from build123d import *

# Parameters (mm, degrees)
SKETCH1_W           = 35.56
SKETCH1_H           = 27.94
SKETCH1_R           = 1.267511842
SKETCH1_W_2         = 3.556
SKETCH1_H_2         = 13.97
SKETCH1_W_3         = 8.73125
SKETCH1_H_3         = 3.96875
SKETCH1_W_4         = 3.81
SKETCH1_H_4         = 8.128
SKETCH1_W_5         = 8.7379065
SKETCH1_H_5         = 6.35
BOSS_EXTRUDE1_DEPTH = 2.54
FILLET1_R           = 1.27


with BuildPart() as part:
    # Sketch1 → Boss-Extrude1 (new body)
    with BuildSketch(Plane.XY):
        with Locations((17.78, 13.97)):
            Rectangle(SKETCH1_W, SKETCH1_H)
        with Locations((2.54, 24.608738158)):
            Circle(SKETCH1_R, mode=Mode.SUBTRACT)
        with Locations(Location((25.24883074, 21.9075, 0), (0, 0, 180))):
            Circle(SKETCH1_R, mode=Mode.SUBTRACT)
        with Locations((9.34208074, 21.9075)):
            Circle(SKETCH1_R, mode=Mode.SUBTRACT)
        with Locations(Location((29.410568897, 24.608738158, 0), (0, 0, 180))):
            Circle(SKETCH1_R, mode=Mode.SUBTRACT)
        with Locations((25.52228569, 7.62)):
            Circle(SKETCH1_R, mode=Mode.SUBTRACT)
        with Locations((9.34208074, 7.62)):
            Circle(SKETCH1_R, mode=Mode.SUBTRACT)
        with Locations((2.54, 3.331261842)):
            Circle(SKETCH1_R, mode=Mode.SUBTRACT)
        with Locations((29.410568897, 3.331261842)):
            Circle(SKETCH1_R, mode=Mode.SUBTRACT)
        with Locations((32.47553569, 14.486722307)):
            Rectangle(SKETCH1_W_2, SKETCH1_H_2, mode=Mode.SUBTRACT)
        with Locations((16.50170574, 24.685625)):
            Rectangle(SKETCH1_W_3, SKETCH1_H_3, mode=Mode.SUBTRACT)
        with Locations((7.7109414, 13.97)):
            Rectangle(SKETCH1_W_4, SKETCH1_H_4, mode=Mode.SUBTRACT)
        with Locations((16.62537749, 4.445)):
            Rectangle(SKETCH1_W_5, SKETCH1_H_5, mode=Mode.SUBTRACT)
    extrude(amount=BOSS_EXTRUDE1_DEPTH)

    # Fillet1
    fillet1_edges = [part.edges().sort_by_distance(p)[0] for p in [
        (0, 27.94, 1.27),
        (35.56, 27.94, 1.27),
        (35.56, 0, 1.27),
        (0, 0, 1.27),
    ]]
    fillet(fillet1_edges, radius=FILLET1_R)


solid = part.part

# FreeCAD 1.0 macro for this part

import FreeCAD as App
import Part
import Sketcher
from FreeCAD import Vector
Q = App.Units.Quantity


def edges_at(feature, points):
    """Names of the edges that pass closest to the given points."""
    edges = feature.Shape.Edges
    near = lambda p: min(range(len(edges)), key=lambda i: edges[i].distToShape(Part.Vertex(*p))[0])
    return sorted({f"Edge{near(p) + 1}" for p in points})


def add_polygon(sketch, points):
    """Adds a closed chain of lines whose ends are joined by coincident constraints."""
    first, n = sketch.GeometryCount, len(points)
    for a, b in zip(points, points[1:] + points[:1]):
        sketch.addGeometry(Part.LineSegment(App.Vector(*a, 0), App.Vector(*b, 0)), False)
    for i in range(n):
        sketch.addConstraint(Sketcher.Constraint("Coincident", first + i, 2, first + (i + 1) % n, 1))

doc = App.newDocument("Part")
body = doc.addObject("PartDesign::Body", "Body")

# Sketch on XY plane
sketch1 = body.newObject("Sketcher::SketchObject", "Sketch")
sketch1.AttachmentSupport = (doc.getObject("XY_Plane"), [""])
sketch1.MapMode = "FlatFace"
add_polygon(sketch1, [(0, 27.9), (0, 0), (35.6, 0), (35.6, 27.9)])  # lines 0-3
sketch1.addGeometry(Part.Circle(Vector(2.5, 3.3, 0), Vector(0, 0, 1), 1.3), False)  # 4
sketch1.addGeometry(Part.Circle(Vector(9.3, 7.6, 0), Vector(0, 0, 1), 1.3), False)  # 5
add_polygon(sketch1, [(21, 1.3), (12.3, 1.3), (12.3, 7.6), (21, 7.6)])  # lines 6-9
add_polygon(sketch1, [(9.6, 9.9), (5.8, 9.9), (5.8, 18), (9.6, 18)])  # lines 10-13
sketch1.addGeometry(Part.Circle(Vector(25.5, 7.6, 0), Vector(0, 0, 1), 1.3), False)  # 14
sketch1.addGeometry(Part.Circle(Vector(29.4, 3.3, 0), Vector(0, 0, 1), 1.3), False)  # 15
sketch1.addGeometry(Part.Circle(Vector(9.3, 21.9, 0), Vector(0, 0, 1), 1.3), False)  # 16
sketch1.addGeometry(Part.Circle(Vector(2.5, 24.6, 0), Vector(0, 0, 1), 1.3), False)  # 17
add_polygon(sketch1, [(20.9, 22.7), (12.1, 22.7), (12.1, 26.7), (20.9, 26.7)])  # lines 18-21
add_polygon(sketch1, [(34.3, 7.5), (30.7, 7.5), (30.7, 21.5), (34.3, 21.5)])  # lines 22-25
sketch1.addGeometry(Part.Circle(Vector(25.2, 21.9, 0), Vector(0, 0, 1), 1.3), False)  # 26
sketch1.addGeometry(Part.Circle(Vector(29.4, 24.6, 0), Vector(0, 0, 1), 1.3), False)  # 27
sketch1.addConstraint([
    Sketcher.Constraint("Vertical", 0),
    Sketcher.Constraint("Horizontal", 1),
    Sketcher.Constraint("Vertical", 2),
    Sketcher.Constraint("Horizontal", 3),
    Sketcher.Constraint("Horizontal", 6),
    Sketcher.Constraint("Vertical", 7),
    Sketcher.Constraint("Horizontal", 8),
    Sketcher.Constraint("Vertical", 9),
    Sketcher.Constraint("Horizontal", 10),
    Sketcher.Constraint("Vertical", 11),
    Sketcher.Constraint("Horizontal", 12),
    Sketcher.Constraint("Vertical", 13),
    Sketcher.Constraint("Horizontal", 18),
    Sketcher.Constraint("Vertical", 19),
    Sketcher.Constraint("Horizontal", 20),
    Sketcher.Constraint("Vertical", 21),
    Sketcher.Constraint("Horizontal", 22),
    Sketcher.Constraint("Vertical", 23),
    Sketcher.Constraint("Horizontal", 24),
    Sketcher.Constraint("Vertical", 25),
    Sketcher.Constraint("Coincident", 0, 2, -1, 1),
    Sketcher.Constraint("Equal", 4, 5),
    Sketcher.Constraint("Equal", 5, 14),
    Sketcher.Constraint("Equal", 14, 15),
    Sketcher.Constraint("Equal", 15, 16),
    Sketcher.Constraint("Equal", 16, 17),
    Sketcher.Constraint("Equal", 17, 26),
    Sketcher.Constraint("Equal", 26, 27),
    Sketcher.Constraint("Horizontal", 5, 3, 14, 3),
    Sketcher.Constraint("Horizontal", 4, 3, 15, 3),
    Sketcher.Constraint("Horizontal", 16, 3, 26, 3),
    Sketcher.Constraint("Horizontal", 17, 3, 27, 3),
    Sketcher.Constraint("Horizontal", 14, 3, 7, 2),
    Sketcher.Constraint("Vertical", 5, 3, 16, 3),
    Sketcher.Constraint("Vertical", 4, 3, 17, 3),
    Sketcher.Constraint("Vertical", 15, 3, 27, 3),
    Sketcher.Constraint("DistanceX", 1, 1, 1, 2, Q("1.4 in")),
    Sketcher.Constraint("DistanceY", 0, 2, 0, 1, Q("1.1 in")),
    Sketcher.Constraint("DistanceX", 10, 2, 10, 1, Q("0.15 in")),
    Sketcher.Constraint("DistanceX", 22, 2, 22, 1, Q("0.14 in")),
    Sketcher.Constraint("DistanceY", 7, 1, 7, 2, Q("0.25 in")),
    Sketcher.Constraint("DistanceY", 11, 1, 11, 2, Q("0.32 in")),
    Sketcher.Constraint("DistanceY", 23, 1, 23, 2, Q("0.55 in")),
    Sketcher.Constraint("DistanceX", -1, 1, 4, 3, Q("0.1 in")),
    Sketcher.Constraint("DistanceY", -1, 1, 5, 3, Q("0.3 in")),
    Sketcher.Constraint("DistanceX", 18, 2, 18, 1, Q("0.34375 in")),
    Sketcher.Constraint("DistanceY", 19, 1, 19, 2, Q("0.15625 in")),
    Sketcher.Constraint("DistanceY", -1, 1, 10, 2, Q("0.39 in")),
    Sketcher.Constraint("DistanceY", -1, 1, 19, 2, Q("1.05 in")),
    Sketcher.Constraint("DistanceX", 16, 3, 18, 2, Q("0.11 in")),
    Sketcher.Constraint("DistanceY", 5, 3, 16, 3, Q("0.5625 in")),
    Sketcher.Constraint("DistanceX", 14, 3, 25, 2, Q("0.34375 in")),
    Sketcher.Constraint("Diameter", 4, 2.535024),
    Sketcher.Constraint("DistanceX", 20, 2, 26, 3, Q("0.1725 in")),
    Sketcher.Constraint("DistanceX", 6, 2, 6, 1, 8.737906),
    Sketcher.Constraint("DistanceY", -1, 1, 4, 3, 3.331262),
    Sketcher.Constraint("DistanceX", -1, 1, 5, 3, 9.342081),
    Sketcher.Constraint("DistanceX", -1, 1, 15, 3, 29.410569),
    Sketcher.Constraint("DistanceY", -1, 1, 17, 3, 24.608738),
    Sketcher.Constraint("DistanceX", -1, 1, 8, 2, 20.994331),
    Sketcher.Constraint("DistanceX", -1, 1, 10, 2, 5.805941),
    Sketcher.Constraint("DistanceX", 6, 2, 14, 3, 13.265861),
    Sketcher.Constraint("DistanceY", 15, 3, 22, 2, 4.17046),
])
pad1 = body.newObject("PartDesign::Pad", "Pad")
pad1.Profile = sketch1
pad1.Length = Q("0.1 in")
doc.recompute()

fillet = body.newObject("PartDesign::Fillet", "Fillet")
fillet.Base = (pad1, edges_at(pad1, [
    (0, 27.94, 1.27),
    (35.56, 27.94, 1.27),
    (35.56, 0, 1.27),
    (0, 0, 1.27),
]))
fillet.Radius = Q("0.05 in")

doc.recompute()
